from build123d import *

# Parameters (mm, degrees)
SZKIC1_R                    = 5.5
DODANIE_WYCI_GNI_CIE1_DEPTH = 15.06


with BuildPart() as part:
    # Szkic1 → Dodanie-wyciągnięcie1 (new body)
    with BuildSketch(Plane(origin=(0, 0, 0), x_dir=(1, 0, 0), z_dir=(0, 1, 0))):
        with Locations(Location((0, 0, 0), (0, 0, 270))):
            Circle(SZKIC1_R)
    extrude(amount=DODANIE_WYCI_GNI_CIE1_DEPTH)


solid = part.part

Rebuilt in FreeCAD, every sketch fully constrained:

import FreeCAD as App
import Part
import Sketcher

V = App.Vector

doc = App.newDocument("Part")
body = doc.addObject("PartDesign::Body", "Body")

sketch1 = body.newObject("Sketcher::SketchObject", "Sketch")
sketch1.AttachmentSupport = (doc.getObject("XZ_Plane"), [""])
sketch1.MapMode = "FlatFace"
sketch1.addGeometry(Part.Circle(V(0, 0, 0), V(0, 0, 1), 5.5), False)
sketch1.addConstraint(Sketcher.Constraint("Coincident", 0, 3, -1, 1))
sketch1.addConstraint(Sketcher.Constraint("Diameter", 0, 11.0))
pad1 = body.newObject("PartDesign::Pad", "Pad")
pad1.Profile = sketch1
pad1.Length = 15.06
pad1.Reversed = True

doc.recompute()
